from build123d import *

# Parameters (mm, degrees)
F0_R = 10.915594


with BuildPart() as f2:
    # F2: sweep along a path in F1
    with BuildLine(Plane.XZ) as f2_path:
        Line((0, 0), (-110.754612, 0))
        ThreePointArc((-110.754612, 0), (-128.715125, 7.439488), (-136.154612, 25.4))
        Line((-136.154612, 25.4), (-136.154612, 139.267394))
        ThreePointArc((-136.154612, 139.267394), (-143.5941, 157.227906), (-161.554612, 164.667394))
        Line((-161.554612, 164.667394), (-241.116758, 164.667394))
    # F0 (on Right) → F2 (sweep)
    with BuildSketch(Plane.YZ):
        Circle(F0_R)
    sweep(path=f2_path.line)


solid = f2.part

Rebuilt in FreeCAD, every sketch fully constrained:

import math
import FreeCAD as App
import Part
import Sketcher
from FreeCAD import Vector
Q = App.Units.Quantity

doc = App.newDocument("Part")
body = doc.addObject("PartDesign::Body", "Body")

sketch1 = body.newObject("Sketcher::SketchObject", "Sketch")
sketch1.AttachmentSupport = (doc.getObject("YZ_Plane"), [""])
sketch1.MapMode = "FlatFace"
sketch1.addGeometry(Part.Circle(Vector(0, 0, 0), Vector(0, 0, 1), 11), False)
sketch1.addConstraint(Sketcher.Constraint("Coincident", 0, 3, -1, 1))
sketch1.addConstraint(Sketcher.Constraint("Diameter", 0, Q("21.831188 mm")))

sketch2 = body.newObject("Sketcher::SketchObject", "Sketch001")
sketch2.AttachmentSupport = (doc.getObject("XZ_Plane"), [""])
sketch2.MapMode = "FlatFace"
sketch2.addGeometry(Part.LineSegment(Vector(0, 0, 0), Vector(-111, 0, 0)), False)
sketch2.addGeometry(Part.ArcOfCircle(Part.Circle(Vector(-111, 25, 0), Vector(0, 0, 1), 25), math.radians(180), math.radians(270)), False)
sketch2.addGeometry(Part.LineSegment(Vector(-136, 25, 0), Vector(-136, 139, 0)), False)
sketch2.addGeometry(Part.ArcOfCircle(Part.Circle(Vector(-162, 139, 0), Vector(0, 0, 1), 25), math.radians(0), math.radians(90)), False)
sketch2.addGeometry(Part.LineSegment(Vector(-162, 165, 0), Vector(-241, 165, 0)), False)
sketch2.addConstraint(Sketcher.Constraint("Tangent", 0, 2, 1, 2))
sketch2.addConstraint(Sketcher.Constraint("Tangent", 1, 1, 2, 1))
sketch2.addConstraint(Sketcher.Constraint("Tangent", 2, 2, 3, 1))
sketch2.addConstraint(Sketcher.Constraint("Tangent", 3, 2, 4, 1))
sketch2.addConstraint(Sketcher.Constraint("Horizontal", 0))
sketch2.addConstraint(Sketcher.Constraint("Vertical", 2))
sketch2.addConstraint(Sketcher.Constraint("Horizontal", 4))
sketch2.addConstraint(Sketcher.Constraint("Coincident", 0, 1, -1, 1))
sketch2.addConstraint(Sketcher.Constraint("Equal", 1, 3))
sketch2.addConstraint(Sketcher.Constraint("Radius", 1, Q("1 in")))
sketch2.addConstraint(Sketcher.Constraint("DistanceX", 0, 2, 0, 1, Q("110.754612 mm")))
sketch2.addConstraint(Sketcher.Constraint("DistanceX", 4, 2, 4, 1, Q("79.562146 mm")))
sketch2.addConstraint(Sketcher.Constraint("DistanceY", 2, 1, 2, 2, Q("113.867394 mm")))
doc.recompute()

additivepipe = body.newObject("PartDesign::AdditivePipe", "AdditivePipe")
additivepipe.Profile = sketch1
additivepipe.Spine = (sketch2, ["Edge1", "Edge2", "Edge3", "Edge4", "Edge5"])

doc.recompute()
